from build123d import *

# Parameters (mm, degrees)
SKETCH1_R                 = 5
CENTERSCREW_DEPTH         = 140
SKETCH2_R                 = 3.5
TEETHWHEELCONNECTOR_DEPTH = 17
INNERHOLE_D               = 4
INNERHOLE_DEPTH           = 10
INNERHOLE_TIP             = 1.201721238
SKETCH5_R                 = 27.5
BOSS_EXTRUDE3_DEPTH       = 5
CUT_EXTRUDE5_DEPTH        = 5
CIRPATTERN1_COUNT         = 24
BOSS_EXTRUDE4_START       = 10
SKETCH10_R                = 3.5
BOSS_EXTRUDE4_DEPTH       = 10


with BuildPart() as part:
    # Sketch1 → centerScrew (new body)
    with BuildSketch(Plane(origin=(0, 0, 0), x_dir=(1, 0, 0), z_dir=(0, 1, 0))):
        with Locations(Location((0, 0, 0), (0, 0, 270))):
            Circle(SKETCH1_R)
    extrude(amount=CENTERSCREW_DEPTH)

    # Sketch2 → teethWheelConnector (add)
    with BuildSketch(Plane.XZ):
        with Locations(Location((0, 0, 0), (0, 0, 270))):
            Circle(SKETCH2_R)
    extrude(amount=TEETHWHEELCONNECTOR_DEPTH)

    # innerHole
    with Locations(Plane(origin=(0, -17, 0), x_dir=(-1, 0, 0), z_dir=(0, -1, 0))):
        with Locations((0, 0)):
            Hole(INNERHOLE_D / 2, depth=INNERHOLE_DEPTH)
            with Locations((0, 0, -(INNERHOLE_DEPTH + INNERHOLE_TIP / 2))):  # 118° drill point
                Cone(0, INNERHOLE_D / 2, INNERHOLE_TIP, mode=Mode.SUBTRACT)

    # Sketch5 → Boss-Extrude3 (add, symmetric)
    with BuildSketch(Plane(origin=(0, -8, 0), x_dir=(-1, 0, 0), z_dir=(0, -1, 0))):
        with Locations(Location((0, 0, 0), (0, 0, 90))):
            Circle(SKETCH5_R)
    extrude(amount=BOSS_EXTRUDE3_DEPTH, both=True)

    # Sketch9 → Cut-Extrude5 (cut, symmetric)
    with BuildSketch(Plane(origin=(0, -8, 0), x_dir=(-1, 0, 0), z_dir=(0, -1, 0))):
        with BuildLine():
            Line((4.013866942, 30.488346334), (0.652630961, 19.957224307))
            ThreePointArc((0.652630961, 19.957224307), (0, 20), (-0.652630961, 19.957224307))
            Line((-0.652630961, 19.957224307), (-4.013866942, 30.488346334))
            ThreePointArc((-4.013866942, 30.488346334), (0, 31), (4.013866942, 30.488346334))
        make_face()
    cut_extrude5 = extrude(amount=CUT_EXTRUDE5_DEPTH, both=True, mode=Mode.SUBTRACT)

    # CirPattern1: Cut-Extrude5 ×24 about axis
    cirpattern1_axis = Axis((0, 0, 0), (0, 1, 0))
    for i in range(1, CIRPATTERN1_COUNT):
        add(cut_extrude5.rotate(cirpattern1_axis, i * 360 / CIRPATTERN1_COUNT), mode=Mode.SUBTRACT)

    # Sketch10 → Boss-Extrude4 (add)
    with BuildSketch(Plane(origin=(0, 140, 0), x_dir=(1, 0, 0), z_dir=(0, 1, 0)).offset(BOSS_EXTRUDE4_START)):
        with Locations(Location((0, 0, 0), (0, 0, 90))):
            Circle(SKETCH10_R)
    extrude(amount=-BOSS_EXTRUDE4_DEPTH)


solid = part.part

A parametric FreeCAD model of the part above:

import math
import FreeCAD as App
import Part
import Sketcher
from FreeCAD import Vector

doc = App.newDocument("Part")
params = doc.addObject("Spreadsheet::Sheet", "Params")
for row, (alias, value) in enumerate([
    ("sketch1_diameter", "10 mm"),
    ("pad1_length", "140 mm"),
    ("sketch2_diameter", "7 mm"),
    ("pad2_length", "17 mm"),
    ("sketch3_diameter", "4 mm"),
    ("hole_diameter", "4 mm"),
    ("hole_depth", "10 mm"),
    ("sketch4_diameter", "55 mm"),
    ("pad3_length", "10 mm"),
    ("sketch5_radius", "16 mm"),
    ("sketch5_radius2", "5 mm"),
    ("pocket1_length", "10 mm"),
    ("sketch6_diameter", "7 mm"),
    ("pad4_length", "10 mm"),
], start=1):
    params.set(f"A{row}", alias)
    params.set(f"B{row}", "=" + value)
    params.setAlias(f"B{row}", alias)

body = doc.addObject("PartDesign::Body", "Body")

# Sketch on XZ plane
sketch1 = doc.addObject("Sketcher::SketchObject", "Sketch")
body.addObject(sketch1)
sketch1.AttachmentSupport = (doc.XZ_Plane, [""])
sketch1.MapMode = "FlatFace"
sketch1.addGeometry(Part.Circle(Vector(0, 0, 0), Vector(0, 0, 1), 5), False)
sketch1.addConstraint([
    Sketcher.Constraint("Coincident", 0, 3, -1, 1),
    Sketcher.Constraint("Diameter", 0, 10.0),
])
sketch1.setExpression("Constraints[1]", "Params.sketch1_diameter")
pad1 = doc.addObject("PartDesign::Pad", "Pad")
body.addObject(pad1)
pad1.Profile = sketch1
pad1.setExpression("Length", "Params.pad1_length")
pad1.Reversed = True

# Sketch on XZ plane
sketch2 = doc.addObject("Sketcher::SketchObject", "Sketch001")
body.addObject(sketch2)
sketch2.AttachmentSupport = (doc.XZ_Plane, [""])
sketch2.MapMode = "FlatFace"
sketch2.addGeometry(Part.Circle(Vector(0, 0, 0), Vector(0, 0, 1), 3.5), False)
sketch2.addConstraint([
    Sketcher.Constraint("Coincident", 0, 3, -1, 1),
    Sketcher.Constraint("Diameter", 0, 7.0),
])
sketch2.setExpression("Constraints[1]", "Params.sketch2_diameter")
pad2 = doc.addObject("PartDesign::Pad", "Pad001")
body.addObject(pad2)
pad2.Profile = sketch2
pad2.setExpression("Length", "Params.pad2_length")

# Sketch on XZ plane
sketch3 = doc.addObject("Sketcher::SketchObject", "Sketch002")
body.addObject(sketch3)
sketch3.AttachmentSupport = (doc.XZ_Plane, [""])
sketch3.MapMode = "FlatFace"
sketch3.AttachmentOffset = App.Placement(Vector(0, 0, 17), App.Rotation())
sketch3.addGeometry(Part.Circle(Vector(0, 0, 0), Vector(0, 0, 1), 2), False)
sketch3.addConstraint([
    Sketcher.Constraint("Coincident", 0, 3, -1, 1),
    Sketcher.Constraint("Diameter", 0, 4.0),
])
sketch3.setExpression("Constraints[1]", "Params.sketch3_diameter")
doc.recompute()
hole = doc.addObject("PartDesign::Hole", "Hole")
body.addObject(hole)
hole.Profile = sketch3
hole.ThreadType = "None"
hole.setExpression("Diameter", "Params.hole_diameter")
hole.DepthType = "Dimension"
hole.setExpression("Depth", "Params.hole_depth")
hole.DrillPoint = "Angled"
hole.DrillPointAngle = 118

# Sketch on XZ plane
sketch4 = doc.addObject("Sketcher::SketchObject", "Sketch003")
body.addObject(sketch4)
sketch4.AttachmentSupport = (doc.XZ_Plane, [""])
sketch4.MapMode = "FlatFace"
sketch4.AttachmentOffset = App.Placement(Vector(0, 0, 8), App.Rotation())
sketch4.addGeometry(Part.Circle(Vector(0, 0, 0), Vector(0, 0, 1), 28), False)
sketch4.addConstraint([
    Sketcher.Constraint("Coincident", 0, 3, -1, 1),
    Sketcher.Constraint("Diameter", 0, 55.0),
])
sketch4.setExpression("Constraints[1]", "Params.sketch4_diameter")
pad3 = doc.addObject("PartDesign::Pad", "Pad002")
body.addObject(pad3)
pad3.Profile = sketch4
pad3.setExpression("Length", "Params.pad3_length")
pad3.Midplane = True

# Sketch on XZ plane
sketch5 = doc.addObject("Sketcher::SketchObject", "Sketch004")
body.addObject(sketch5)
sketch5.AttachmentSupport = (doc.XZ_Plane, [""])
sketch5.MapMode = "FlatFace"
sketch5.AttachmentOffset = App.Placement(Vector(0, 0, 8), App.Rotation())
sketch5.addGeometry([
    Part.LineSegment(Vector(-0.7, -20, 0), Vector(-4, -30.5, 0)),
    Part.ArcOfCircle(Part.Circle(Vector(0, -15, 0), Vector(0, 0, 1), 16), math.radians(-105), math.radians(-75)),
    Part.LineSegment(Vector(4, -30.5, 0), Vector(0.7, -20, 0)),
    Part.ArcOfCircle(Part.Circle(Vector(0, -15, 0), Vector(0, 0, 1), 5), math.radians(-97.5), math.radians(-82.5)),
], False)
sketch5.addConstraint([
    Sketcher.Constraint("Coincident", 0, 2, 1, 1),
    Sketcher.Constraint("Coincident", 1, 2, 2, 1),
    Sketcher.Constraint("Coincident", 2, 2, 3, 2),
    Sketcher.Constraint("Coincident", 3, 1, 0, 1),
    Sketcher.Constraint("Coincident", 3, 3, 1, 3),
    Sketcher.Constraint("Symmetric", 0, 2, 1, 2, -2),
    Sketcher.Constraint("Horizontal", 2, 2, 3, 1),
    Sketcher.Constraint("Radius", 1, 16.0),
    Sketcher.Constraint("Radius", 3, 5.0),
    Sketcher.Constraint("DistanceY", 1, 3, -1, 1, 15.0),
    Sketcher.Constraint("Distance", 0, 11.054521),
    Sketcher.Constraint("DistanceX", -1, 1, 2, 2, 0.652631),
])
sketch5.setExpression("Constraints[7]", "Params.sketch5_radius")
sketch5.setExpression("Constraints[8]", "Params.sketch5_radius2")
pocket1 = doc.addObject("PartDesign::Pocket", "Pocket")
body.addObject(pocket1)
pocket1.Profile = sketch5
pocket1.setExpression("Length", "Params.pocket1_length")
pocket1.Midplane = True
doc.recompute()

polarpattern = doc.addObject("PartDesign::PolarPattern", "PolarPattern")
body.addObject(polarpattern)
polarpattern.Originals = [pocket1]
polarpattern.Axis = (doc.Y_Axis, [""])
polarpattern.Angle = 360
polarpattern.Occurrences = 24
body.Tip = polarpattern

# Sketch on XZ plane
sketch6 = doc.addObject("Sketcher::SketchObject", "Sketch005")
body.addObject(sketch6)
sketch6.AttachmentSupport = (doc.XZ_Plane, [""])
sketch6.MapMode = "FlatFace"
sketch6.AttachmentOffset = App.Placement(Vector(0, 0, -150), App.Rotation())
sketch6.addGeometry(Part.Circle(Vector(0, 0, 0), Vector(0, 0, 1), 3.5), False)
sketch6.addConstraint([
    Sketcher.Constraint("Coincident", 0, 3, -1, 1),
    Sketcher.Constraint("Diameter", 0, 7.0),
])
sketch6.setExpression("Constraints[1]", "Params.sketch6_diameter")
pad4 = doc.addObject("PartDesign::Pad", "Pad003")
body.addObject(pad4)
pad4.Profile = sketch6
pad4.setExpression("Length", "Params.pad4_length")

doc.recompute()
